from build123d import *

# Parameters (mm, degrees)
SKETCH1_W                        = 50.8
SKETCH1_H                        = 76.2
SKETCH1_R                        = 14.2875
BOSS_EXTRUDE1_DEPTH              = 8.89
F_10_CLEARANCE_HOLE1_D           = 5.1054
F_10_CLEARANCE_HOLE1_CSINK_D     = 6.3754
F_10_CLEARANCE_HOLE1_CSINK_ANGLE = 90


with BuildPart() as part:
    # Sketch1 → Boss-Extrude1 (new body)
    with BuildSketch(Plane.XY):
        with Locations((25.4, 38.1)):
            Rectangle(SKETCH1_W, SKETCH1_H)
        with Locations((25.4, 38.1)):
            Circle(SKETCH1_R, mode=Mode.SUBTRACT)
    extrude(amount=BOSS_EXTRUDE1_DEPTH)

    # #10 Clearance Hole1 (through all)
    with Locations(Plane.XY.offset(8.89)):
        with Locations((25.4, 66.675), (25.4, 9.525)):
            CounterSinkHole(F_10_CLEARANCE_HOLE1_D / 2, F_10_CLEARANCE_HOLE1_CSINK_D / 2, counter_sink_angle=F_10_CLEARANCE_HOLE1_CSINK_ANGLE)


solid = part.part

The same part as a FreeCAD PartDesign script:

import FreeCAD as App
import Part
import Sketcher

V = App.Vector
Q = App.Units.Quantity

doc = App.newDocument("Part")
body = doc.addObject("PartDesign::Body", "Body")

sketch1 = body.newObject("Sketcher::SketchObject", "Sketch")
sketch1.AttachmentSupport = (doc.getObject("XY_Plane"), [""])
sketch1.MapMode = "FlatFace"
sketch1.addGeometry([
    Part.LineSegment(V(0, 76.2, 0), V(0, 0, 0)),
    Part.LineSegment(V(0, 0, 0), V(50.8, 0, 0)),
    Part.LineSegment(V(50.8, 0, 0), V(50.8, 76.2, 0)),
    Part.LineSegment(V(50.8, 76.2, 0), V(0, 76.2, 0)),
    Part.Circle(V(25.4, 38.1, 0), V(0, 0, 1), 14.2875),
], False)
sketch1.addConstraint([
    Sketcher.Constraint("Coincident", 0, 2, 1, 1),
    Sketcher.Constraint("Coincident", 1, 2, 2, 1),
    Sketcher.Constraint("Coincident", 2, 2, 3, 1),
    Sketcher.Constraint("Coincident", 3, 2, 0, 1),
    Sketcher.Constraint("Vertical", 0),
    Sketcher.Constraint("Horizontal", 1),
    Sketcher.Constraint("Vertical", 2),
    Sketcher.Constraint("Horizontal", 3),
    Sketcher.Constraint("Coincident", 0, 2, -1, 1),
    Sketcher.Constraint("DistanceX", 1, 1, 1, 2, Q("2 in")),
    Sketcher.Constraint("DistanceY", 0, 2, 0, 1, Q("3 in")),
    Sketcher.Constraint("Diameter", 4, Q("1.125 in")),
    Sketcher.Constraint("DistanceX", -1, 1, 4, 3, Q("1 in")),
    Sketcher.Constraint("DistanceY", -1, 1, 4, 3, Q("1.5 in")),
])
pad1 = body.newObject("PartDesign::Pad", "Pad")
pad1.Profile = sketch1
pad1.Length = Q("0.35 in")

sketch2 = body.newObject("Sketcher::SketchObject", "Sketch001")
sketch2.AttachmentSupport = (doc.getObject("XY_Plane"), [""])
sketch2.MapMode = "FlatFace"
sketch2.AttachmentOffset = App.Placement(V(0, 0, 0.35 * 25.4), App.Rotation())
sketch2.addGeometry([
    Part.Circle(V(25.4, 66.675, 0), V(0, 0, 1), 2.5527),
    Part.Circle(V(25.4, 9.525, 0), V(0, 0, 1), 2.5527),
], False)
sketch2.addConstraint([
    Sketcher.Constraint("Equal", 0, 1),
    Sketcher.Constraint("Vertical", 0, 3, 1, 3),
    Sketcher.Constraint("Diameter", 0, Q("0.201 in")),
    Sketcher.Constraint("DistanceX", -1, 1, 0, 3, Q("1 in")),
    Sketcher.Constraint("DistanceY", 1, 3, 0, 3, Q("2.25 in")),
    Sketcher.Constraint("DistanceY", -1, 1, 0, 3, Q("2.625 in")),
])
doc.recompute()
hole = body.newObject("PartDesign::Hole", "Hole")
hole.Profile = sketch2
hole.ThreadType = "None"
hole.Diameter = Q("0.201 in")
hole.DepthType = "ThroughAll"
hole.HoleCutType = "Countersink"
hole.HoleCutDiameter = Q("0.251 in")
hole.HoleCutCountersinkAngle = 90

doc.recompute()
